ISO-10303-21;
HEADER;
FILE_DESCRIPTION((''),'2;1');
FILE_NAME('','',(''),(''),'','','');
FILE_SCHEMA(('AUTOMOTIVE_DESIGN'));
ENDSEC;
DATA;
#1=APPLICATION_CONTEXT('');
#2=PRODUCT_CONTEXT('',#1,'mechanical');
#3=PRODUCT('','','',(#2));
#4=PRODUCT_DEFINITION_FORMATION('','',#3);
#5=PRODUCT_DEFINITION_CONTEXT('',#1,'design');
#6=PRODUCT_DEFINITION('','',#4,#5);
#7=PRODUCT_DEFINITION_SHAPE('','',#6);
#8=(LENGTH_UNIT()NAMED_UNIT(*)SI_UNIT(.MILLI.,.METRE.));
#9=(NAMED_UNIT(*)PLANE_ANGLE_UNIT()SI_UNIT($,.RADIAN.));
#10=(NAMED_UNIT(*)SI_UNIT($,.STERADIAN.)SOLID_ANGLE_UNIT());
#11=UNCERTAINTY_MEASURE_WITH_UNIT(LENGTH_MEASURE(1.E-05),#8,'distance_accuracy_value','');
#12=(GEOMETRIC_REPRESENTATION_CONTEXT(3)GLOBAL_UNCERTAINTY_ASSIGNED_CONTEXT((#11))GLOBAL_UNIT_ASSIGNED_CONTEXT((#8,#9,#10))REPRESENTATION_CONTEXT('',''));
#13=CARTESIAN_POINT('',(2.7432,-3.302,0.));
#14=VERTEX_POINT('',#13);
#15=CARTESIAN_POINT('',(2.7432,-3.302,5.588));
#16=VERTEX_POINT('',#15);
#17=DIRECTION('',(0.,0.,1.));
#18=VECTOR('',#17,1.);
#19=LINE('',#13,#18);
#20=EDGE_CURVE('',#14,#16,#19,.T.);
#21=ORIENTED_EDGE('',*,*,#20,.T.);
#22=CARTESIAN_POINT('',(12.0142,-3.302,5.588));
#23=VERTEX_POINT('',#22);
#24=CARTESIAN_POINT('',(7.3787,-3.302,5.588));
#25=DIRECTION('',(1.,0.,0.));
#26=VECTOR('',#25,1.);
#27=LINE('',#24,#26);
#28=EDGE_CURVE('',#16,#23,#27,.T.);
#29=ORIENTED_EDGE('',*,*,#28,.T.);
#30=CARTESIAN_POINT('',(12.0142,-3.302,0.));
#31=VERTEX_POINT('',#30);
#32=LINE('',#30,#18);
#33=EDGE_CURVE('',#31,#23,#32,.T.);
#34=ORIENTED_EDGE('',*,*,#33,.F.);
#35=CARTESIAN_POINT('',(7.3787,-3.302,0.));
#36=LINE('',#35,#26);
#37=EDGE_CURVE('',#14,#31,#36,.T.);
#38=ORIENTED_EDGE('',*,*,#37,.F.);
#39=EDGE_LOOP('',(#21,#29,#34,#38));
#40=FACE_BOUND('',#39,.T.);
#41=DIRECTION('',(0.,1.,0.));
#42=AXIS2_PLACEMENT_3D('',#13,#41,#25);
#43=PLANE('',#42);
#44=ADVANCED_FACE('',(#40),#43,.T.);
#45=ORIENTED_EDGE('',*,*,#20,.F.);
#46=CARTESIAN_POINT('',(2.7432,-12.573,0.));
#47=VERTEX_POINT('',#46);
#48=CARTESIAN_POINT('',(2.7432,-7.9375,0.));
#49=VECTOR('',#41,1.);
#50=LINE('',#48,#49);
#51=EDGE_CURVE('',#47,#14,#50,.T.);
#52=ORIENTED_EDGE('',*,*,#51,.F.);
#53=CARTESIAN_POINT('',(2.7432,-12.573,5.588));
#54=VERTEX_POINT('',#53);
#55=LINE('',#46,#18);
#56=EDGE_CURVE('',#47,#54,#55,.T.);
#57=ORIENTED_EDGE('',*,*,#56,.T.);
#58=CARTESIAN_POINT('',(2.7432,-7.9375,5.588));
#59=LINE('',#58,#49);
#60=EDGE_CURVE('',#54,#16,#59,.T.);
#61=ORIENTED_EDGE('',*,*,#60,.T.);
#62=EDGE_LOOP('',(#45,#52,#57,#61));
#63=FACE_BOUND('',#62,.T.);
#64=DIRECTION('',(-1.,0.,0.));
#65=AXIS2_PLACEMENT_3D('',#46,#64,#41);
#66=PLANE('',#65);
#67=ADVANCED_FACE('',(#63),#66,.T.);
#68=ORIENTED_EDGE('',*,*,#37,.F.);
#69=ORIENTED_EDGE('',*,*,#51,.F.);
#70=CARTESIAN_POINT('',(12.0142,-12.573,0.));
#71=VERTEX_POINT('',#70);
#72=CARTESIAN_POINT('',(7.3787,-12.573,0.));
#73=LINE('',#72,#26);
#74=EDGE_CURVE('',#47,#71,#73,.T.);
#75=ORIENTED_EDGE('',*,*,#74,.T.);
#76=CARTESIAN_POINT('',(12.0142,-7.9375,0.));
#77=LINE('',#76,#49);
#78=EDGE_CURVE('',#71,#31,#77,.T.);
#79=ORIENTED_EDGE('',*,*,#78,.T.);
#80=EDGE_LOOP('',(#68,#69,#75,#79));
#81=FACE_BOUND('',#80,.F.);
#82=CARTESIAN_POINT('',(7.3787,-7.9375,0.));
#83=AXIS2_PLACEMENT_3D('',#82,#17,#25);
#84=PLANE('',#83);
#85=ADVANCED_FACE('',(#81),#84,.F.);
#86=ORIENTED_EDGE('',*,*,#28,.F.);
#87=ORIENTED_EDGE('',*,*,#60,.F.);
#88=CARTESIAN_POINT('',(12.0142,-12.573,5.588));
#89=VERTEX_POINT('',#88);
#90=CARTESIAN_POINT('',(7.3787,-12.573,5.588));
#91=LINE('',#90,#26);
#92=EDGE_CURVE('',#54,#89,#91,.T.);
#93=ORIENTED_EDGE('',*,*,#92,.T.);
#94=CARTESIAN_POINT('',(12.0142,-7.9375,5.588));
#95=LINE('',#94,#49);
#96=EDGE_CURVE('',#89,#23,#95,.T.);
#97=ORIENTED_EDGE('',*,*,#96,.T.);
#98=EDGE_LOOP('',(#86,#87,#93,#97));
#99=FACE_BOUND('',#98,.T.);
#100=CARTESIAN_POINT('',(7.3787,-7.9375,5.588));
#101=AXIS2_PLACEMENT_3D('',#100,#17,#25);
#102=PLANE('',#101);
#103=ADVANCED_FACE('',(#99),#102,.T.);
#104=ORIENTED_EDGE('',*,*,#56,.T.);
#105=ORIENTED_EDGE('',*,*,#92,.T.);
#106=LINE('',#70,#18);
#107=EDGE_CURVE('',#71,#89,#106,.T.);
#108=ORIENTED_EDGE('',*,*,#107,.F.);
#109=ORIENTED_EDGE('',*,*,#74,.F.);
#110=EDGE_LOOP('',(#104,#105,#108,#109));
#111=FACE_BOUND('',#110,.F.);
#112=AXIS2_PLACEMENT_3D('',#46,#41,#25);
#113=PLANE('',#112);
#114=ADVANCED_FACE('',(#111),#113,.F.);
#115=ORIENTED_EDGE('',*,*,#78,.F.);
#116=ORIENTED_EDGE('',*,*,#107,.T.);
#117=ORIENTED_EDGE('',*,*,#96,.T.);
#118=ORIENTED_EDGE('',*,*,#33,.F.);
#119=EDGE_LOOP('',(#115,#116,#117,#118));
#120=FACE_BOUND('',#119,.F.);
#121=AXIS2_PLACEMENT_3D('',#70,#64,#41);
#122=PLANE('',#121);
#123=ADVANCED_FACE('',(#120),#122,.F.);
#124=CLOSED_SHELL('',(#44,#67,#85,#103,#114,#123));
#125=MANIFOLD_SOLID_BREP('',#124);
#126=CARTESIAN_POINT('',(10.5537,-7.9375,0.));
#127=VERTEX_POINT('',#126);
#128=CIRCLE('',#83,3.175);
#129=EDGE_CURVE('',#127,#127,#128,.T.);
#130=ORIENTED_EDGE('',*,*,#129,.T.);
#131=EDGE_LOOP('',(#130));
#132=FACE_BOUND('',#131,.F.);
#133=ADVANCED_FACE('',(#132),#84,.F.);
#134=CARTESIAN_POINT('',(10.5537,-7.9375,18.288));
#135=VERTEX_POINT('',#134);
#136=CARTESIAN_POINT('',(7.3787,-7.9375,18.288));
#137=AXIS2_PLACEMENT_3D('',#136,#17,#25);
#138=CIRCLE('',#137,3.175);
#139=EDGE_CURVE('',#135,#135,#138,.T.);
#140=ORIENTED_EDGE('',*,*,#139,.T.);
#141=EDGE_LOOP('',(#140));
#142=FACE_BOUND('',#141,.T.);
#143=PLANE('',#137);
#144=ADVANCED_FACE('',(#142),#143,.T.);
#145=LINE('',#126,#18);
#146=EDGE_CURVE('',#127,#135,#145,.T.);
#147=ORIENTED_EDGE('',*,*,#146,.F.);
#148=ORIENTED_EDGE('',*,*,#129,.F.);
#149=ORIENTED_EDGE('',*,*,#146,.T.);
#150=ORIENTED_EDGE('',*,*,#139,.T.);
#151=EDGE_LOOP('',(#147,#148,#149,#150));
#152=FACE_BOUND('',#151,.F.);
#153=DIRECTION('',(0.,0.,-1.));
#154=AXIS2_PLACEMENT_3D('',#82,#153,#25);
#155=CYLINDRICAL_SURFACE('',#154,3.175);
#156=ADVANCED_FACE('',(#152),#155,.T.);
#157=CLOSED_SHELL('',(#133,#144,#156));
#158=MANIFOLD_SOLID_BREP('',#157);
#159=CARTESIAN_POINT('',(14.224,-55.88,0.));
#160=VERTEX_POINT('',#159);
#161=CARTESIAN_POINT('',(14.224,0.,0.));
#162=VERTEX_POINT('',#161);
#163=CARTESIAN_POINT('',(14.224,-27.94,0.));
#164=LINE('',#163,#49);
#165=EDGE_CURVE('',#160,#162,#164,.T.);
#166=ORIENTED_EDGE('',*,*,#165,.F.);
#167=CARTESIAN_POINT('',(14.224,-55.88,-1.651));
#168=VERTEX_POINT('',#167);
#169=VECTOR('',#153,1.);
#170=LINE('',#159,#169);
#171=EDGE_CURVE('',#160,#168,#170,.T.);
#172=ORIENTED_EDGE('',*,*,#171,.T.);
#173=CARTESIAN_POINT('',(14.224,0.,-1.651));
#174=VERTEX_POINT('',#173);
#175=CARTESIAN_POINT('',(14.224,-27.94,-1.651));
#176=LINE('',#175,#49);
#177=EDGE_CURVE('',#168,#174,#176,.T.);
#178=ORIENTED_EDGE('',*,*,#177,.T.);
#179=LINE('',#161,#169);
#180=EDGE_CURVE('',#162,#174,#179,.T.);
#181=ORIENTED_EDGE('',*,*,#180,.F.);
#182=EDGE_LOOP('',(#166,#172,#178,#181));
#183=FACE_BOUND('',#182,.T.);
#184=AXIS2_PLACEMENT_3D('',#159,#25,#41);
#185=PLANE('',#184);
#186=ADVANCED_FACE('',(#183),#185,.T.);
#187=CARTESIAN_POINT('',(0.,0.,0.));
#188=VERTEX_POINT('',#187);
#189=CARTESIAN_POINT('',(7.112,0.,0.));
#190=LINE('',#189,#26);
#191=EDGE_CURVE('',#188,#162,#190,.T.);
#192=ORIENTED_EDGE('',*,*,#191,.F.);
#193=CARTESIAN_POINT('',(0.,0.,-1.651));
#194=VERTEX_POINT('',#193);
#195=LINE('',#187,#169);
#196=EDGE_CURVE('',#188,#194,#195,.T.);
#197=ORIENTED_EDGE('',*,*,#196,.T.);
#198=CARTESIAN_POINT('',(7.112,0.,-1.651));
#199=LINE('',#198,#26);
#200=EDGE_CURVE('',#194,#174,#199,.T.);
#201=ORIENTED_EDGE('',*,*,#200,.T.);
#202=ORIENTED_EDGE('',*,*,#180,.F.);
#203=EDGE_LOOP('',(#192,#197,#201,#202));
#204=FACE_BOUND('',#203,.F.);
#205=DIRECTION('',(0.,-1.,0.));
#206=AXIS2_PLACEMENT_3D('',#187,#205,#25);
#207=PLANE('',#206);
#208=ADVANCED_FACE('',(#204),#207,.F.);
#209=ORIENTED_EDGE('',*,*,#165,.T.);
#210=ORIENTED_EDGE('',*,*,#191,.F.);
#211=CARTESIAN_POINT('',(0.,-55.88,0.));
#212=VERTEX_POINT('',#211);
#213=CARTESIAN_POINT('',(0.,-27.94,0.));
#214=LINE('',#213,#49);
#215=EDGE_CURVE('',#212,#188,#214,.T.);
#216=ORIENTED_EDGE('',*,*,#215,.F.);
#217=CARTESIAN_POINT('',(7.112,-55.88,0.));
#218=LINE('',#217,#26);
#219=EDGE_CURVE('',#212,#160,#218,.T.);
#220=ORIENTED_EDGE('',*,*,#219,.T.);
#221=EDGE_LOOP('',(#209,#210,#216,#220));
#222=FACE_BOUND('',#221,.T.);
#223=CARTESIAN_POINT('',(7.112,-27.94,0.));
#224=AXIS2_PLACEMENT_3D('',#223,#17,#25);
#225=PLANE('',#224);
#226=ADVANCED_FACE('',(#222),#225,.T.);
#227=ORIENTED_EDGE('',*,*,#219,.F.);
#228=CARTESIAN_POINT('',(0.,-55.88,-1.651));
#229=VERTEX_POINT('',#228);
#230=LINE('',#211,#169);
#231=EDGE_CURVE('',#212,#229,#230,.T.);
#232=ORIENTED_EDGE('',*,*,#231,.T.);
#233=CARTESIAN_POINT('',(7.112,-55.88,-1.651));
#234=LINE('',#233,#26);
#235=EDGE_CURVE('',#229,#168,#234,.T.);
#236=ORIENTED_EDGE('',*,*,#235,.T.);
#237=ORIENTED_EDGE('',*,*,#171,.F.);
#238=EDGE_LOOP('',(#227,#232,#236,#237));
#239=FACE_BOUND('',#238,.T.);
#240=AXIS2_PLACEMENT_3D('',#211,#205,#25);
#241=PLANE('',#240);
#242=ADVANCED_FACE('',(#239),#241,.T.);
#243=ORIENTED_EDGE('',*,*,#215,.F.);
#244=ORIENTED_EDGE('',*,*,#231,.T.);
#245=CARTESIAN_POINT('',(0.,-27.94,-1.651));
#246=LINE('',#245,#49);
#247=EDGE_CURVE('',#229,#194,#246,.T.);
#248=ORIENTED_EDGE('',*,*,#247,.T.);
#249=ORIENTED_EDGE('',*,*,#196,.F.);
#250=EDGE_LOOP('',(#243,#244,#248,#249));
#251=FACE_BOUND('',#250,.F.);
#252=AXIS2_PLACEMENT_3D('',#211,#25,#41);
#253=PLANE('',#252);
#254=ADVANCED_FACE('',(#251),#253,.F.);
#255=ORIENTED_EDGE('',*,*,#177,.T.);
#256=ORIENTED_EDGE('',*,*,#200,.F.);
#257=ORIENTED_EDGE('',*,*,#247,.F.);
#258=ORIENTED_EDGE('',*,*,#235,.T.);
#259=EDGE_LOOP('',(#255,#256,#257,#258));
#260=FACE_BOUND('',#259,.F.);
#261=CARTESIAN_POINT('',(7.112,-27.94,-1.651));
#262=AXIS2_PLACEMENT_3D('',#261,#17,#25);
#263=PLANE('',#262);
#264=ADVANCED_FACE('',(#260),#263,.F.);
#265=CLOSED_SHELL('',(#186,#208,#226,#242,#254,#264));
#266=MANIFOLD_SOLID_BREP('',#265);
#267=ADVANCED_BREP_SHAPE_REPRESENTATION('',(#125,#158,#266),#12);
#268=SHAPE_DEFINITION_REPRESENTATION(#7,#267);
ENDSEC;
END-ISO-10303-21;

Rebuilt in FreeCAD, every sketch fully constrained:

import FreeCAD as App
import Part
import Sketcher
Q = App.Units.Quantity


def add_polygon(sketch, points):
    """Adds a closed chain of lines whose ends are joined by coincident constraints."""
    first, n = sketch.GeometryCount, len(points)
    for a, b in zip(points, points[1:] + points[:1]):
        sketch.addGeometry(Part.LineSegment(App.Vector(*a, 0), App.Vector(*b, 0)), False)
    for i in range(n):
        sketch.addConstraint(Sketcher.Constraint("Coincident", first + i, 2, first + (i + 1) % n, 1))

doc = App.newDocument("Part")
body = doc.addObject("PartDesign::Body", "Body")

sketch1 = doc.addObject("Sketcher::SketchObject", "Sketch")
body.addObject(sketch1)
sketch1.AttachmentSupport = (doc.XY_Plane, [""])
sketch1.MapMode = "FlatFace"
add_polygon(sketch1, [(0, 0), (0, -56), (14, -56), (14, 0)])
sketch1.addConstraint(Sketcher.Constraint("Vertical", 0))
sketch1.addConstraint(Sketcher.Constraint("Horizontal", 1))
sketch1.addConstraint(Sketcher.Constraint("Vertical", 2))
sketch1.addConstraint(Sketcher.Constraint("Horizontal", 3))
sketch1.addConstraint(Sketcher.Constraint("Coincident", 3, 2, -1, 1))
sketch1.addConstraint(Sketcher.Constraint("DistanceY", 0, 2, 0, 1, Q("2.2 in")))
sketch1.addConstraint(Sketcher.Constraint("DistanceX", 1, 1, 1, 2, Q("0.56 in")))
pad1 = doc.addObject("PartDesign::Pad", "Pad")
body.addObject(pad1)
pad1.Profile = sketch1
pad1.Length = Q("0.065 in")
pad1.Reversed = True
body2 = doc.addObject("PartDesign::Body", "Body001")

sketch2 = doc.addObject("Sketcher::SketchObject", "Sketch001")
body2.addObject(sketch2)
sketch2.AttachmentSupport = (doc.getObject("XY_Plane001"), [""])
sketch2.MapMode = "FlatFace"
add_polygon(sketch2, [(3, -3), (3, -13), (12, -13), (12, -3)])
sketch2.addConstraint(Sketcher.Constraint("Vertical", 0))
sketch2.addConstraint(Sketcher.Constraint("Horizontal", 1))
sketch2.addConstraint(Sketcher.Constraint("Vertical", 2))
sketch2.addConstraint(Sketcher.Constraint("Horizontal", 3))
sketch2.addConstraint(Sketcher.Constraint("Equal", 3, 0))
sketch2.addConstraint(Sketcher.Constraint("DistanceX", 1, 1, 1, 2, Q("0.365 in")))
sketch2.addConstraint(Sketcher.Constraint("DistanceY", 2, 2, -1, 1, Q("0.13 in")))
sketch2.addConstraint(Sketcher.Constraint("DistanceX", -1, 1, 0, 2, Q("0.108 in")))
pad2 = doc.addObject("PartDesign::Pad", "Pad001")
body2.addObject(pad2)
pad2.Profile = sketch2
pad2.Length = Q("0.22 in")
body3 = doc.addObject("PartDesign::Body", "Body002")

sketch3 = doc.addObject("Sketcher::SketchObject", "Sketch002")
body3.addObject(sketch3)
sketch3.AttachmentSupport = (doc.getObject("XY_Plane002"), [""])
sketch3.MapMode = "FlatFace"
sketch3.addGeometry(Part.Circle(App.Vector(7.4, -7.9, 0), App.Vector(0, 0, 1), 3.2), False)
sketch3.addConstraint(Sketcher.Constraint("Diameter", 0, Q("0.25 in")))
sketch3.addConstraint(Sketcher.Constraint("DistanceY", 0, 3, -1, 1, Q("0.3125 in")))
sketch3.addConstraint(Sketcher.Constraint("DistanceX", -1, 1, 0, 3, Q("0.2905 in")))
pad3 = doc.addObject("PartDesign::Pad", "Pad002")
body3.addObject(pad3)
pad3.Profile = sketch3
pad3.Length = Q("0.72 in")

doc.recompute()
